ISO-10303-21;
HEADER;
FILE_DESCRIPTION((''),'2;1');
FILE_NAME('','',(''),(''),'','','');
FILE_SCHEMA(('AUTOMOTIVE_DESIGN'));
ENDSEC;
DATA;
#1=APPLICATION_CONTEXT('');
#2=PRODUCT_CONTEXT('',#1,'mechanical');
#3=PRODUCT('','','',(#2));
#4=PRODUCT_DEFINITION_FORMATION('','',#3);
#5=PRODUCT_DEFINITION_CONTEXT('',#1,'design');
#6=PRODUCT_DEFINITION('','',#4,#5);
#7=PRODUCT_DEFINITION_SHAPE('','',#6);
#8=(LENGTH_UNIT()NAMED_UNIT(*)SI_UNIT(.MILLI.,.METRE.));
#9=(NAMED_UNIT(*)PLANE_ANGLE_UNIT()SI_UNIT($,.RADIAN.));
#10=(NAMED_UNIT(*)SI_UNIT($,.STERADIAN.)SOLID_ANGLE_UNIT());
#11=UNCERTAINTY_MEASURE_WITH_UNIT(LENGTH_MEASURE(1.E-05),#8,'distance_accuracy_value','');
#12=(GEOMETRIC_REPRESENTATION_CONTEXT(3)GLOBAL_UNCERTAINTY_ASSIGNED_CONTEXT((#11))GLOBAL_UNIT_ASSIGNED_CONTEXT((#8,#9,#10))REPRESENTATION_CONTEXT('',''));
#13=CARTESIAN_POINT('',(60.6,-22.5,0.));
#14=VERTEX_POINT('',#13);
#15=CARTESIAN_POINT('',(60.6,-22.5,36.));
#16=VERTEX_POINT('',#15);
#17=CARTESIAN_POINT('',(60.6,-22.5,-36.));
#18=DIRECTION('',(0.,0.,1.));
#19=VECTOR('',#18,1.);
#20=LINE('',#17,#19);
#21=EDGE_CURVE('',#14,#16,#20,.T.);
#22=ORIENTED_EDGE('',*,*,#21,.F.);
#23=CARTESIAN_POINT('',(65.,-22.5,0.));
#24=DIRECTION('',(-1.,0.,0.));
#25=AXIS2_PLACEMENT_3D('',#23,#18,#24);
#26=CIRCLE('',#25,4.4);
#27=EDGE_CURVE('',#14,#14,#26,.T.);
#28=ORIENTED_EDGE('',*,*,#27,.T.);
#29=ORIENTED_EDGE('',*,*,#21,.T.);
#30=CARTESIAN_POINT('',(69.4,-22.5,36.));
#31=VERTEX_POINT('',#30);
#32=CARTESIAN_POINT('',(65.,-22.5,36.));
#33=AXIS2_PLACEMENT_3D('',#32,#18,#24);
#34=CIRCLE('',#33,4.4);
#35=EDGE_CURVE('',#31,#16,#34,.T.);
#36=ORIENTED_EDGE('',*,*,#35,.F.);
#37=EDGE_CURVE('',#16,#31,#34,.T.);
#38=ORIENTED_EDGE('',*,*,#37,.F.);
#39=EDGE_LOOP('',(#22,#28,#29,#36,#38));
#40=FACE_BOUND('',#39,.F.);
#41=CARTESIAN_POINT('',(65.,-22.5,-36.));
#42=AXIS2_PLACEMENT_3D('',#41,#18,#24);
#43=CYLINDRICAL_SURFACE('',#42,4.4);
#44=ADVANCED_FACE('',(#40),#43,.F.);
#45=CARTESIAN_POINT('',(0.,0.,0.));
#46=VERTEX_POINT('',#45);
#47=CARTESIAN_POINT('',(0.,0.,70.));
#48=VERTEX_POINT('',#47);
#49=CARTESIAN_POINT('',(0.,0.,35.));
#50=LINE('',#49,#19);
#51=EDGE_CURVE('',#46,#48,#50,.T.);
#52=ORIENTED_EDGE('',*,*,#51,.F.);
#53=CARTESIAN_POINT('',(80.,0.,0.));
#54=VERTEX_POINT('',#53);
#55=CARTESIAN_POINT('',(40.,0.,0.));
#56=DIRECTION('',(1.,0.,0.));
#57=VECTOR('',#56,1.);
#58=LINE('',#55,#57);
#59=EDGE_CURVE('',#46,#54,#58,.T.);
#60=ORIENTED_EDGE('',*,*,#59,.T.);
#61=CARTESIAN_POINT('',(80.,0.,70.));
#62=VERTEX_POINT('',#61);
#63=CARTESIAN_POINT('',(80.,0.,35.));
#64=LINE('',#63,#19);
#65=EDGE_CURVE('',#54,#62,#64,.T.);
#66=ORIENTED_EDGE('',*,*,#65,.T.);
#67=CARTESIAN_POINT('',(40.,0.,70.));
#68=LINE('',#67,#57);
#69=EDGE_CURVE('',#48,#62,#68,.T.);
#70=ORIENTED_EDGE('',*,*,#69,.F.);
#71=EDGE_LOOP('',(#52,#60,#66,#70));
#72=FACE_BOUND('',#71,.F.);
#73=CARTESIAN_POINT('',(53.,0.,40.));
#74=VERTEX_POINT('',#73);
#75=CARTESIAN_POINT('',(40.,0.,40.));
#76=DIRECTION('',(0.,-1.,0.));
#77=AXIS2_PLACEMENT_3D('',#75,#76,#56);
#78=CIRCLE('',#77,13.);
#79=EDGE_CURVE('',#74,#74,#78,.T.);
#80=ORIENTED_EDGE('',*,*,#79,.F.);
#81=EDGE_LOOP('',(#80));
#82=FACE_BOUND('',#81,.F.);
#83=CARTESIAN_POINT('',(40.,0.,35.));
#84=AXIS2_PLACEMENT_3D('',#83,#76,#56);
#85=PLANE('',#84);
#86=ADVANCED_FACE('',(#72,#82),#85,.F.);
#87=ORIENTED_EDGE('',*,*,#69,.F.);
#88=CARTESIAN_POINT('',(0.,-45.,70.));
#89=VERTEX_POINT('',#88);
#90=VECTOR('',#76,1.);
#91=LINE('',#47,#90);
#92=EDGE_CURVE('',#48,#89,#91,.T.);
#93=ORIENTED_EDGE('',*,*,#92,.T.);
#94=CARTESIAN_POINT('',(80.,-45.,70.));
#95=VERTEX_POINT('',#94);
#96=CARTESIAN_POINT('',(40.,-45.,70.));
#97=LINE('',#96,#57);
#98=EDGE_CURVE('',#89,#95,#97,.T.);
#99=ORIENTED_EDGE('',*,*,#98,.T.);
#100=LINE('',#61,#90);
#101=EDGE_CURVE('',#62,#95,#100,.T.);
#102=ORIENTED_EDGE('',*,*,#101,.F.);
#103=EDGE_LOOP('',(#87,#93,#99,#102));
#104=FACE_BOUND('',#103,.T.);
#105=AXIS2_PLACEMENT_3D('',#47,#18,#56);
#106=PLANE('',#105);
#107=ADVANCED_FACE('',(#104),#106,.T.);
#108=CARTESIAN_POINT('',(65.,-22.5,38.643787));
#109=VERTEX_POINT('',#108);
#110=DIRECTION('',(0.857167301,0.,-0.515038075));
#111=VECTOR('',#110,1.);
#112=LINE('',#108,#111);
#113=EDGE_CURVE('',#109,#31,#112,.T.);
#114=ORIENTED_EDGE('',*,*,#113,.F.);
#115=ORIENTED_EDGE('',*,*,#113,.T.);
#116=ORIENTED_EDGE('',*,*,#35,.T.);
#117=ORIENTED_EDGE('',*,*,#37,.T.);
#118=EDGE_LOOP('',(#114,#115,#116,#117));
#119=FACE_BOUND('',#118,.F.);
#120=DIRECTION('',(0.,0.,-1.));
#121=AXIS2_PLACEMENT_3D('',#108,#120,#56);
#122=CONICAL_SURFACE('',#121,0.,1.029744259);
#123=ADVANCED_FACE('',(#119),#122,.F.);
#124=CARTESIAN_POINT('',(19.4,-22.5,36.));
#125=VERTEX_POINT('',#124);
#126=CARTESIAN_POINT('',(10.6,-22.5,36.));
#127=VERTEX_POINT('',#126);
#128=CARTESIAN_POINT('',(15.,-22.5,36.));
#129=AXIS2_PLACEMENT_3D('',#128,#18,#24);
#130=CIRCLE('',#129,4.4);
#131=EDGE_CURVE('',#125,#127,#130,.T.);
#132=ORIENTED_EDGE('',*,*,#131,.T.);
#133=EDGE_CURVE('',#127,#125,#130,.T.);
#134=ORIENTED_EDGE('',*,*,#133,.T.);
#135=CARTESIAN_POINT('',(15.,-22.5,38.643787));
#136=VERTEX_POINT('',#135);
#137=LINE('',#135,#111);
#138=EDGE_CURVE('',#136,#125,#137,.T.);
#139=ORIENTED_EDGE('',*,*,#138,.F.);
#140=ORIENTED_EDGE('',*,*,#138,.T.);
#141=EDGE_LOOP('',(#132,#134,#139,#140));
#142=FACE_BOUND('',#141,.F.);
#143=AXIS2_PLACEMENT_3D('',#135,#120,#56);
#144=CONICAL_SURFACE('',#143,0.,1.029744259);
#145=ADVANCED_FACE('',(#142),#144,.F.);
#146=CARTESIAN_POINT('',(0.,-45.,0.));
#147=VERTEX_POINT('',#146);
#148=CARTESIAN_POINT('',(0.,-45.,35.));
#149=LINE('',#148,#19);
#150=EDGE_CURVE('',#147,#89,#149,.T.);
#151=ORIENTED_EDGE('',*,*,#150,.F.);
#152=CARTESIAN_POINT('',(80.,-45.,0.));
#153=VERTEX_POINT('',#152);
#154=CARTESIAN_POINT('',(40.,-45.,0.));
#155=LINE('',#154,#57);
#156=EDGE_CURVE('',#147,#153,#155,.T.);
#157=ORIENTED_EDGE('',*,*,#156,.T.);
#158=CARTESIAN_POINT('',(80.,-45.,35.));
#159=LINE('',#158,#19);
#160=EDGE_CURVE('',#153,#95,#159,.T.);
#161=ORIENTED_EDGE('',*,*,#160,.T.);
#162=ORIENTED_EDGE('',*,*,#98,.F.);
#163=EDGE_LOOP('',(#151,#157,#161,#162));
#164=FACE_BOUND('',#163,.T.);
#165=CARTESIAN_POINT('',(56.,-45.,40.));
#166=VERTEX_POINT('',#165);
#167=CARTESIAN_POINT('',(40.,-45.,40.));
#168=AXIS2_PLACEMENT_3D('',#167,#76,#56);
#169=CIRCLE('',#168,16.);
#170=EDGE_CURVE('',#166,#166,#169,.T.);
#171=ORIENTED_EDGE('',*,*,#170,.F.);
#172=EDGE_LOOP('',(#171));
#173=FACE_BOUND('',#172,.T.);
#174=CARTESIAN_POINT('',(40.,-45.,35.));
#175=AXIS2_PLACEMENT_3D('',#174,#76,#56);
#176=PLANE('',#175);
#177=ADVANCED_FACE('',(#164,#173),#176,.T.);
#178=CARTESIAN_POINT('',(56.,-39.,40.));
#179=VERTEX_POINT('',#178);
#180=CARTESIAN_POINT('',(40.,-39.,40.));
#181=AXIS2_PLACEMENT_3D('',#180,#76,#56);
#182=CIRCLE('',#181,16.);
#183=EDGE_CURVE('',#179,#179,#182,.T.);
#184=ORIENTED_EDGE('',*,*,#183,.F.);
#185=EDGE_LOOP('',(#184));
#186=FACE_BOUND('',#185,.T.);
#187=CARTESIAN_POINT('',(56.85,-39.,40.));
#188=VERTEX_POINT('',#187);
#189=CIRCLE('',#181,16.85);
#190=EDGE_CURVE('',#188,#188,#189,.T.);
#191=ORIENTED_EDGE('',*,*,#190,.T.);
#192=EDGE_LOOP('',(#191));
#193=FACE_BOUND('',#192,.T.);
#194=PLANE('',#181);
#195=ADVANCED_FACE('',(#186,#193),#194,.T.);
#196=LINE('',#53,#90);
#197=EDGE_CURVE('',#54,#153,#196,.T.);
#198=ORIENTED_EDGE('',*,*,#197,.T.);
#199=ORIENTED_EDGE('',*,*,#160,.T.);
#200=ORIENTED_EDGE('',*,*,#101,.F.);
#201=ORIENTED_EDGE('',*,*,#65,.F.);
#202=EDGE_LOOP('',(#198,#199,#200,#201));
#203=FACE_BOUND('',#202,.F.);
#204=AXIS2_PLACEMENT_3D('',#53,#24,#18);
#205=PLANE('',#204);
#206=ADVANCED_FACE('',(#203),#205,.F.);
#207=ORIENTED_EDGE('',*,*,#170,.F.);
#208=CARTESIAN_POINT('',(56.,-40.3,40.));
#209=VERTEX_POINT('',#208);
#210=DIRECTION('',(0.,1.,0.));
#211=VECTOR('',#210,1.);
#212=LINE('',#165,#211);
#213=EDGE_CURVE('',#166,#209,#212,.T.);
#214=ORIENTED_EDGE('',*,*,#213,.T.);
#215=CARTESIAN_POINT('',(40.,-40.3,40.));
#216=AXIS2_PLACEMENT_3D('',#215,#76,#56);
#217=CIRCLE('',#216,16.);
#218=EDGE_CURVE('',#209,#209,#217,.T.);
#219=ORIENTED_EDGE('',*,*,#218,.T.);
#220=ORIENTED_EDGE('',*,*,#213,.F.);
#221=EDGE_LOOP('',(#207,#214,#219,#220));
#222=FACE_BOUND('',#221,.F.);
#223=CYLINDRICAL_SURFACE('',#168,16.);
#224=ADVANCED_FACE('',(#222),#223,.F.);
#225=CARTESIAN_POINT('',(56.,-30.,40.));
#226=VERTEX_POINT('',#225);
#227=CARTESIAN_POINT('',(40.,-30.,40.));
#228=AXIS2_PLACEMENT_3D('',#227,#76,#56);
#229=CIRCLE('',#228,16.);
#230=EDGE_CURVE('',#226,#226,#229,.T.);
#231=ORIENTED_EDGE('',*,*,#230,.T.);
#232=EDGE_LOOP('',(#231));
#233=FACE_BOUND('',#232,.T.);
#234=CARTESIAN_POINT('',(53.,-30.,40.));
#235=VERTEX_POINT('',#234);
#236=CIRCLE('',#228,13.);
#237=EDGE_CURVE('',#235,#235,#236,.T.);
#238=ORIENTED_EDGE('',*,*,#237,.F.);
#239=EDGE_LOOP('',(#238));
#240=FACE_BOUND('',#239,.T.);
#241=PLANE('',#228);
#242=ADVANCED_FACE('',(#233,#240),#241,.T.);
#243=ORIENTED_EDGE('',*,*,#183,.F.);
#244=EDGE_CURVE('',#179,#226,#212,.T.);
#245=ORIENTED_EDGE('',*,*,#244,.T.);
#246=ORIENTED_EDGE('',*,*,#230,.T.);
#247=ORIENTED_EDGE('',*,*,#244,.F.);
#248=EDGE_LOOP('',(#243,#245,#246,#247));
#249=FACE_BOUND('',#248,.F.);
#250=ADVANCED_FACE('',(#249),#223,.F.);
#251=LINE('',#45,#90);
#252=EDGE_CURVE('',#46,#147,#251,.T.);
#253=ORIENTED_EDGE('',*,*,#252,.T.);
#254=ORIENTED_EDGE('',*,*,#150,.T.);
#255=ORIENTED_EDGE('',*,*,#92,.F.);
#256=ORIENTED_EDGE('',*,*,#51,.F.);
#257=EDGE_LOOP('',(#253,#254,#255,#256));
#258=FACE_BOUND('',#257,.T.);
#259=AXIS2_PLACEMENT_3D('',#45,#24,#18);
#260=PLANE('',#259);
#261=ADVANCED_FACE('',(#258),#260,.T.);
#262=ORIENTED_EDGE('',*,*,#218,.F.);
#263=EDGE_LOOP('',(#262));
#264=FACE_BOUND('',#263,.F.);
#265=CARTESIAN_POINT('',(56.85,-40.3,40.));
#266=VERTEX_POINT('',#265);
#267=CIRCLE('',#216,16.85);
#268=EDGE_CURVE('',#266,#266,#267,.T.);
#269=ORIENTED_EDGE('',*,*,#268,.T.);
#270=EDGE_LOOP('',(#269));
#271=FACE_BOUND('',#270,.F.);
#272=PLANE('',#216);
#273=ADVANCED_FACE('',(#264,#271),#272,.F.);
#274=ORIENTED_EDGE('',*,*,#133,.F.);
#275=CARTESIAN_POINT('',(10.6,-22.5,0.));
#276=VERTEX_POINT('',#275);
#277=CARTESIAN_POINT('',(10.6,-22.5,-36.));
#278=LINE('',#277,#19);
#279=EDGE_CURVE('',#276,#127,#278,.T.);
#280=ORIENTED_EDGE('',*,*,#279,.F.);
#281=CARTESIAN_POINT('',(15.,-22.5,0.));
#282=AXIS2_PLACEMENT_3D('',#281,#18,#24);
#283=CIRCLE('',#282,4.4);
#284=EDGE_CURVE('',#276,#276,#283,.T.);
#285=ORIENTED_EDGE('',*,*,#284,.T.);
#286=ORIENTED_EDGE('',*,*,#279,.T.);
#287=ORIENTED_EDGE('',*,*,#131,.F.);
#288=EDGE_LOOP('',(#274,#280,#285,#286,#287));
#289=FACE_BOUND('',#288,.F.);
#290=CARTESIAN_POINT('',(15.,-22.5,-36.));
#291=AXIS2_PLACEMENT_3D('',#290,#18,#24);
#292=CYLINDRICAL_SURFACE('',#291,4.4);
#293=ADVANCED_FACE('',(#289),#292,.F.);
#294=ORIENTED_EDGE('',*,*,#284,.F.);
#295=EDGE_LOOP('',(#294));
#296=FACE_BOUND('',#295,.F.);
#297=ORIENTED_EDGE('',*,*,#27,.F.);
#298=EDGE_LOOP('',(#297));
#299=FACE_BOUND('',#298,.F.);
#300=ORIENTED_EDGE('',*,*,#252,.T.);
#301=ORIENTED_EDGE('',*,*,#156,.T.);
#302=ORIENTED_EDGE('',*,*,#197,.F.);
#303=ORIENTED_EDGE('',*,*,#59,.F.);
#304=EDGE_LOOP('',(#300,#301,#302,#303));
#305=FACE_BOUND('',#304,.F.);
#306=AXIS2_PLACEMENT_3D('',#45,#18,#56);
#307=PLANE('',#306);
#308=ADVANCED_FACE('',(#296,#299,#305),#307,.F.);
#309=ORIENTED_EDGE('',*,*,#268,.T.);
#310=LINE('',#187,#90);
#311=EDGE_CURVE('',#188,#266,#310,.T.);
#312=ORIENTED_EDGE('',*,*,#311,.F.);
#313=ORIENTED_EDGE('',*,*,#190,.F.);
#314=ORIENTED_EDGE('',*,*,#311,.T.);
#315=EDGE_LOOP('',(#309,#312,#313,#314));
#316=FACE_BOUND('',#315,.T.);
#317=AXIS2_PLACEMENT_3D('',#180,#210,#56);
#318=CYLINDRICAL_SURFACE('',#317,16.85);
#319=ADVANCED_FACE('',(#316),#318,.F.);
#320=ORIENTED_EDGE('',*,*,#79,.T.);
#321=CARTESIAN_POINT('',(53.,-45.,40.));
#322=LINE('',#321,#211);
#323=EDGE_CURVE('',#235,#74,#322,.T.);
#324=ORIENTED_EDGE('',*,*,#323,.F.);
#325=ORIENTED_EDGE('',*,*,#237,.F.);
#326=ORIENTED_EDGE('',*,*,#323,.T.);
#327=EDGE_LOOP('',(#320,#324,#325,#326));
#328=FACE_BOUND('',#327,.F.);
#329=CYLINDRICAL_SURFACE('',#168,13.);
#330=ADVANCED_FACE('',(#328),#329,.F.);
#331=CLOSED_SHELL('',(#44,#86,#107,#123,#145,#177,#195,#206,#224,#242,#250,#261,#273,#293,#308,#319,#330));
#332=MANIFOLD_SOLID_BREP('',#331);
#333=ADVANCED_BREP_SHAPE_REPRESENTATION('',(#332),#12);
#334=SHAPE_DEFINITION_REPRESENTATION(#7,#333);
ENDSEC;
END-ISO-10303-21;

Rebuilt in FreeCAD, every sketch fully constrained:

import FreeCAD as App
import Part
import Sketcher
from FreeCAD import Vector
Q = App.Units.Quantity

doc = App.newDocument("Part")
params = doc.addObject("Spreadsheet::Sheet", "Params")
for row, (alias, value) in enumerate([
    ("sketch1_width", "80 mm"),
    ("sketch1_height", "70 mm"),
    ("pad1_length", "45 mm"),
    ("sketch2_diameter", "26 mm"),
    ("sketch3_diameter", "32 mm"),
    ("sketch3_diameter2", "26 mm"),
    ("pocket2_length", "15 mm"),
    ("sketch4_diameter", "33.7 mm"),
    ("pocket3_length", "1.3 mm"),
    ("sketch5_diameter", "8.8 mm"),
    ("hole_diameter", "8.8 mm"),
    ("hole_depth", "36 mm"),
], start=1):
    params.set(f"A{row}", alias)
    params.set(f"B{row}", "=" + value)
    params.setAlias(f"B{row}", alias)

body = doc.addObject("PartDesign::Body", "Body")

sketch1 = body.newObject("Sketcher::SketchObject", "Sketch")
sketch1.AttachmentSupport = (doc.getObject("XZ_Plane"), [""])
sketch1.MapMode = "FlatFace"
sketch1.addGeometry([
    Part.LineSegment(Vector(0, 70, 0), Vector(0, 0, 0)),
    Part.LineSegment(Vector(0, 0, 0), Vector(80, 0, 0)),
    Part.LineSegment(Vector(80, 0, 0), Vector(80, 70, 0)),
    Part.LineSegment(Vector(80, 70, 0), Vector(0, 70, 0)),
], False)
sketch1.addConstraint([
    Sketcher.Constraint("Coincident", 0, 2, 1, 1),
    Sketcher.Constraint("Coincident", 1, 2, 2, 1),
    Sketcher.Constraint("Coincident", 2, 2, 3, 1),
    Sketcher.Constraint("Coincident", 3, 2, 0, 1),
    Sketcher.Constraint("Vertical", 0),
    Sketcher.Constraint("Horizontal", 1),
    Sketcher.Constraint("Vertical", 2),
    Sketcher.Constraint("Horizontal", 3),
    Sketcher.Constraint("Coincident", 0, 2, -1, 1),
    Sketcher.Constraint("DistanceX", 1, 1, 1, 2, Q("80 mm")),
    Sketcher.Constraint("DistanceY", 0, 2, 0, 1, Q("70 mm")),
])
sketch1.setExpression("Constraints[9]", "Params.sketch1_width")
sketch1.setExpression("Constraints[10]", "Params.sketch1_height")
pad1 = body.newObject("PartDesign::Pad", "Pad")
pad1.Profile = sketch1
pad1.setExpression("Length", "Params.pad1_length")

sketch2 = body.newObject("Sketcher::SketchObject", "Sketch001")
sketch2.AttachmentSupport = (doc.getObject("XZ_Plane"), [""])
sketch2.MapMode = "FlatFace"
sketch2.AttachmentOffset = App.Placement(Vector(0, 0, 45), App.Rotation())
sketch2.addGeometry(Part.Circle(Vector(40, 40, 0), Vector(0, 0, 1), 13), False)
sketch2.addConstraint([
    Sketcher.Constraint("Diameter", 0, Q("26 mm")),
    Sketcher.Constraint("DistanceX", -1, 1, 0, 3, Q("40 mm")),
    Sketcher.Constraint("DistanceY", -1, 1, 0, 3, Q("40 mm")),
])
sketch2.setExpression("Constraints[0]", "Params.sketch2_diameter")
pocket1 = body.newObject("PartDesign::Pocket", "Pocket")
pocket1.Profile = sketch2
pocket1.Type = "ThroughAll"

sketch3 = body.newObject("Sketcher::SketchObject", "Sketch002")
sketch3.AttachmentSupport = (doc.getObject("XZ_Plane"), [""])
sketch3.MapMode = "FlatFace"
sketch3.AttachmentOffset = App.Placement(Vector(0, 0, 45), App.Rotation())
sketch3.addGeometry([
    Part.Circle(Vector(40, 40, 0), Vector(0, 0, 1), 16),
    Part.Circle(Vector(40, 40, 0), Vector(0, 0, 1), 13),
], False)
sketch3.addConstraint([
    Sketcher.Constraint("Coincident", 1, 3, 0, 3),
    Sketcher.Constraint("Diameter", 0, Q("32 mm")),
    Sketcher.Constraint("Diameter", 1, Q("26 mm")),
    Sketcher.Constraint("DistanceX", -1, 1, 0, 3, Q("40 mm")),
    Sketcher.Constraint("DistanceY", -1, 1, 0, 3, Q("40 mm")),
])
sketch3.setExpression("Constraints[1]", "Params.sketch3_diameter")
sketch3.setExpression("Constraints[2]", "Params.sketch3_diameter2")
pocket2 = body.newObject("PartDesign::Pocket", "Pocket001")
pocket2.Profile = sketch3
pocket2.setExpression("Length", "Params.pocket2_length")

sketch4 = body.newObject("Sketcher::SketchObject", "Sketch003")
sketch4.AttachmentSupport = (doc.getObject("XZ_Plane"), [""])
sketch4.MapMode = "FlatFace"
sketch4.AttachmentOffset = App.Placement(Vector(0, 0, 39), App.Rotation())
sketch4.addGeometry(Part.Circle(Vector(40, 40, 0), Vector(0, 0, 1), 16.85), False)
sketch4.addConstraint([
    Sketcher.Constraint("Diameter", 0, Q("33.7 mm")),
    Sketcher.Constraint("DistanceX", -1, 1, 0, 3, Q("40 mm")),
    Sketcher.Constraint("DistanceY", -1, 1, 0, 3, Q("40 mm")),
])
sketch4.setExpression("Constraints[0]", "Params.sketch4_diameter")
pocket3 = body.newObject("PartDesign::Pocket", "Pocket002")
pocket3.Profile = sketch4
pocket3.setExpression("Length", "Params.pocket3_length")
pocket3.Reversed = True

sketch5 = body.newObject("Sketcher::SketchObject", "Sketch004")
sketch5.AttachmentSupport = (doc.getObject("XY_Plane"), [""])
sketch5.MapMode = "FlatFace"
sketch5.addGeometry([
    Part.Circle(Vector(15, -22.5, 0), Vector(0, 0, 1), 4.4),
    Part.Circle(Vector(65, -22.5, 0), Vector(0, 0, 1), 4.4),
], False)
sketch5.addConstraint([
    Sketcher.Constraint("Equal", 0, 1),
    Sketcher.Constraint("Horizontal", 0, 3, 1, 3),
    Sketcher.Constraint("Diameter", 0, Q("8.8 mm")),
    Sketcher.Constraint("DistanceX", -1, 1, 0, 3, Q("15 mm")),
    Sketcher.Constraint("DistanceX", -1, 1, 1, 3, Q("65 mm")),
    Sketcher.Constraint("DistanceY", 0, 3, -1, 1, Q("22.5 mm")),
])
sketch5.setExpression("Constraints[2]", "Params.sketch5_diameter")
doc.recompute()
hole = body.newObject("PartDesign::Hole", "Hole")
hole.Profile = sketch5
hole.ThreadType = "None"
hole.setExpression("Diameter", "Params.hole_diameter")
hole.DepthType = "Dimension"
hole.setExpression("Depth", "Params.hole_depth")
hole.DrillPoint = "Angled"
hole.DrillPointAngle = 118
hole.Reversed = True

doc.recompute()
